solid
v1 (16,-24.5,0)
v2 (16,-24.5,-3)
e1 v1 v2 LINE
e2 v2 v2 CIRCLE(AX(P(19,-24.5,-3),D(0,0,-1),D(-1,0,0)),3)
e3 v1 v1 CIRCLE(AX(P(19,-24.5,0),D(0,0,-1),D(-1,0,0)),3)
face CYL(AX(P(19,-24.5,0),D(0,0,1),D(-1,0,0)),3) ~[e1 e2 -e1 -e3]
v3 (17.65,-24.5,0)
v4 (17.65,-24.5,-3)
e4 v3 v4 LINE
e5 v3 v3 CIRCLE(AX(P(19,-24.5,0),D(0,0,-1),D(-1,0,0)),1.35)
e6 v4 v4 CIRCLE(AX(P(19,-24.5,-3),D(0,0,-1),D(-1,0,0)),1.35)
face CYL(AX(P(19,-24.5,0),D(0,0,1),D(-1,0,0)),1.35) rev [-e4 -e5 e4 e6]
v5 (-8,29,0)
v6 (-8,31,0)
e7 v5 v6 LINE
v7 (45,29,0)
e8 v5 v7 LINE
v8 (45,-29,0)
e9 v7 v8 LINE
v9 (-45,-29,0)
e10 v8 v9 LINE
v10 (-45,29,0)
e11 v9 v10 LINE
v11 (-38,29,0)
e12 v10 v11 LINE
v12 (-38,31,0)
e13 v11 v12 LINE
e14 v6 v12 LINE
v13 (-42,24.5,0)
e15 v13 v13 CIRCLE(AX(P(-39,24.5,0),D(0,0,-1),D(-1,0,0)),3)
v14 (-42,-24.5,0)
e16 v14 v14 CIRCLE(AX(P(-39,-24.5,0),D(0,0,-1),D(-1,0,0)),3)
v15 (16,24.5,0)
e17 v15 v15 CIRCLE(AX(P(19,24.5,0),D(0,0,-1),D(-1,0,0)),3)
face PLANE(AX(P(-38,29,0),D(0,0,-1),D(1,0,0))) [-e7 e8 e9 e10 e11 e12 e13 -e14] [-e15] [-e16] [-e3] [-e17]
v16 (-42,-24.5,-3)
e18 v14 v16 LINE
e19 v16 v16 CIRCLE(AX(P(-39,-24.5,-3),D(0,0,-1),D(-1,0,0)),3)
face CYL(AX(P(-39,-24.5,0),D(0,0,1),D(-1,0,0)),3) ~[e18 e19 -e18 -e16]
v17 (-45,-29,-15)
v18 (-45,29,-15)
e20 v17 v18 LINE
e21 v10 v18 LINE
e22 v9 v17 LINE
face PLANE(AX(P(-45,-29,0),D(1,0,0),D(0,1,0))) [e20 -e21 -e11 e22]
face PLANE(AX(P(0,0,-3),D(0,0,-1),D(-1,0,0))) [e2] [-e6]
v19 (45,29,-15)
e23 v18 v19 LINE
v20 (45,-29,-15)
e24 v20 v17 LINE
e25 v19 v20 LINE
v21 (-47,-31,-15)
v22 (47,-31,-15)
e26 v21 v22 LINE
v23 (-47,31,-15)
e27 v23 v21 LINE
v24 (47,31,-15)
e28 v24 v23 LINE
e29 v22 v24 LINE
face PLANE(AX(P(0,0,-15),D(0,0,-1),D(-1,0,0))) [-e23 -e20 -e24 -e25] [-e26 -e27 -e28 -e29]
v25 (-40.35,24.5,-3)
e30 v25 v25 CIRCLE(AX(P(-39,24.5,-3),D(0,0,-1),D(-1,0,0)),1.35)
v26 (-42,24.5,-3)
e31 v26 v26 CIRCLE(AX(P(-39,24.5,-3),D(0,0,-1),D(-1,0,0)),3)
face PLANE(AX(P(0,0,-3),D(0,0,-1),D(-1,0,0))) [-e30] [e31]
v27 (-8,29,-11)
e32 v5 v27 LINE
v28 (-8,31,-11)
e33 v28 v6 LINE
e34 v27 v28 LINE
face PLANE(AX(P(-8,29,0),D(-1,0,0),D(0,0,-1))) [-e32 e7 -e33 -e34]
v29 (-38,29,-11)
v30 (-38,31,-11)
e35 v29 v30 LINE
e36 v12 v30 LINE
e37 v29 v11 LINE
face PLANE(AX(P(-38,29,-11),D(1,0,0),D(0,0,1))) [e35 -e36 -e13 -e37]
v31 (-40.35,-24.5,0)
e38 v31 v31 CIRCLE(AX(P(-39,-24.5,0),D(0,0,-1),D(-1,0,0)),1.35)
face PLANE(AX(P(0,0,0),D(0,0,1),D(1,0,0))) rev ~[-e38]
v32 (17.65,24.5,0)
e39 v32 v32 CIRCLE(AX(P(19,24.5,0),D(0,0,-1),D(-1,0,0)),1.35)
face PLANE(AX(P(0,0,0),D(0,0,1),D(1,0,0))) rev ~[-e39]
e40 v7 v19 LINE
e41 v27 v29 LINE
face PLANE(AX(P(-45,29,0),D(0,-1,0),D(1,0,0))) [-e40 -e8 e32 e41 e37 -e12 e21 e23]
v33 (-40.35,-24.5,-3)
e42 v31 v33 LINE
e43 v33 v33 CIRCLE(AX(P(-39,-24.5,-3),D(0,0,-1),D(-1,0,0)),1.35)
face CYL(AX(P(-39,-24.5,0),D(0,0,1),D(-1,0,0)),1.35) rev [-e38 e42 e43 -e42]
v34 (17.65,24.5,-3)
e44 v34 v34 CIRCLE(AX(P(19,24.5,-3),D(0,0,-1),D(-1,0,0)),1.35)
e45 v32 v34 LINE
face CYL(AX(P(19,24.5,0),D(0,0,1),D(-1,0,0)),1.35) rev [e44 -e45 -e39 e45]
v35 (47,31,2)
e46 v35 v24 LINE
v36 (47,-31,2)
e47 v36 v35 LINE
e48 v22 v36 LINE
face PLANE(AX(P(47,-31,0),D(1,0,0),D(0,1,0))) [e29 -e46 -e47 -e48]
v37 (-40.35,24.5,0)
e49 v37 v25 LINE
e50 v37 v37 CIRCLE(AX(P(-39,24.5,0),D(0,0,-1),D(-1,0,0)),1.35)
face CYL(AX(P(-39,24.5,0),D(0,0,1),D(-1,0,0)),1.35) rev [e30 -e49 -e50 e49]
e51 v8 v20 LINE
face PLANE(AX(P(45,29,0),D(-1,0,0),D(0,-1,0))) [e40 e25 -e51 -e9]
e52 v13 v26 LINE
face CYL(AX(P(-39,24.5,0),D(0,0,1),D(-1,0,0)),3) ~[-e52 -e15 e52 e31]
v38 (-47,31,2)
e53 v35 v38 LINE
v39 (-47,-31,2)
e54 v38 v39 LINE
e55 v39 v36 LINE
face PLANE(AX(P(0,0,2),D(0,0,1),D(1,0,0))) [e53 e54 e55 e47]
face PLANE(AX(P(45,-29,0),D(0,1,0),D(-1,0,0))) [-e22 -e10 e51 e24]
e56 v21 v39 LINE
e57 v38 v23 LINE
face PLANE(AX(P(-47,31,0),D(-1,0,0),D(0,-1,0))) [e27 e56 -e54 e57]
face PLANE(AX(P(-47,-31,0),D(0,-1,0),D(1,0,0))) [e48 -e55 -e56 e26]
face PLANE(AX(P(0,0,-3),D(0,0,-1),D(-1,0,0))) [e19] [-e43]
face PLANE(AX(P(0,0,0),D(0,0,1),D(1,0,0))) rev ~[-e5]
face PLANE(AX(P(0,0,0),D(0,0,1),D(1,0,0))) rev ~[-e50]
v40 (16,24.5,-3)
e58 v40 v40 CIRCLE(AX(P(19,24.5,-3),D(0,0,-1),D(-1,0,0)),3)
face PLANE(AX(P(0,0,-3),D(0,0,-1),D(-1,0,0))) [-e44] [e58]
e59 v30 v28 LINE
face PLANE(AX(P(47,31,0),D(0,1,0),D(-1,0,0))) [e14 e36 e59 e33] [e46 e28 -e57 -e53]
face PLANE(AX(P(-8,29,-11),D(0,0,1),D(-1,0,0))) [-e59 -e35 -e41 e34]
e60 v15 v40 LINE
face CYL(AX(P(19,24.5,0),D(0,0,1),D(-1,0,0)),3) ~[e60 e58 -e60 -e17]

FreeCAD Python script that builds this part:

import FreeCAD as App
import Part
import Sketcher

V = App.Vector
Q = App.Units.Quantity

doc = App.newDocument("Part")
body = doc.addObject("PartDesign::Body", "Body")

# Sketch on XY plane
sketch1 = body.newObject("Sketcher::SketchObject", "Sketch")
sketch1.AttachmentSupport = (doc.getObject("XY_Plane"), [""])
sketch1.MapMode = "FlatFace"
sketch1.addGeometry([
    Part.LineSegment(V(47, -31, 0), V(47, 31, 0)),
    Part.LineSegment(V(47, 31, 0), V(-47, 31, 0)),
    Part.LineSegment(V(-47, 31, 0), V(-47, -31, 0)),
    Part.LineSegment(V(-47, -31, 0), V(47, -31, 0)),
], False)
sketch1.addConstraint([
    Sketcher.Constraint("Coincident", 0, 2, 1, 1),
    Sketcher.Constraint("Coincident", 1, 2, 2, 1),
    Sketcher.Constraint("Coincident", 2, 2, 3, 1),
    Sketcher.Constraint("Coincident", 3, 2, 0, 1),
    Sketcher.Constraint("Vertical", 0),
    Sketcher.Constraint("Horizontal", 1),
    Sketcher.Constraint("Vertical", 2),
    Sketcher.Constraint("Horizontal", 3),
    Sketcher.Constraint("Symmetric", 0, 2, 2, 2, -1, 1),
    Sketcher.Constraint("DistanceX", 1, 2, 1, 1, Q("94 mm")),
    Sketcher.Constraint("DistanceY", 0, 1, 0, 2, Q("62 mm")),
])
pad1 = body.newObject("PartDesign::Pad", "Pad")
pad1.Profile = sketch1
pad1.Length = 2

# Sketch on XY plane
sketch2 = body.newObject("Sketcher::SketchObject", "Sketch001")
sketch2.AttachmentSupport = (doc.getObject("XY_Plane"), [""])
sketch2.MapMode = "FlatFace"
sketch2.addGeometry([
    Part.Circle(V(-39, 24.5, 0), V(0, 0, 1), 3),  # 0
    Part.Circle(V(-39, 24.5, 0), V(0, 0, 1), 1.4),  # 1
    Part.Circle(V(-39, -24.5, 0), V(0, 0, 1), 3),  # 2
    Part.Circle(V(-39, -24.5, 0), V(0, 0, 1), 1.4),  # 3
    Part.Circle(V(19, -24.5, 0), V(0, 0, 1), 3),  # 4
    Part.Circle(V(19, -24.5, 0), V(0, 0, 1), 1.4),  # 5
    Part.Circle(V(19, 24.5, 0), V(0, 0, 1), 3),  # 6
    Part.Circle(V(19, 24.5, 0), V(0, 0, 1), 1.4),  # 7
], False)
sketch2.addConstraint([
    Sketcher.Constraint("Coincident", 1, 3, 0, 3),
    Sketcher.Constraint("Coincident", 3, 3, 2, 3),
    Sketcher.Constraint("Coincident", 5, 3, 4, 3),
    Sketcher.Constraint("Coincident", 7, 3, 6, 3),
    Sketcher.Constraint("Equal", 0, 2),
    Sketcher.Constraint("Equal", 1, 3),
    Sketcher.Constraint("Equal", 2, 4),
    Sketcher.Constraint("Equal", 3, 5),
    Sketcher.Constraint("Equal", 4, 6),
    Sketcher.Constraint("Equal", 5, 7),
    Sketcher.Constraint("Symmetric", 0, 3, 2, 3, -1),
    Sketcher.Constraint("Symmetric", 4, 3, 6, 3, -1),
    Sketcher.Constraint("Horizontal", 3, 3, 4, 3),
    Sketcher.Constraint("Diameter", 0, Q("6 mm")),
    Sketcher.Constraint("Diameter", 1, Q("2.7 mm")),
    Sketcher.Constraint("DistanceX", 0, 3, -1, 1, Q("39 mm")),
    Sketcher.Constraint("DistanceX", -1, 1, 4, 3, Q("19 mm")),
    Sketcher.Constraint("DistanceY", 2, 3, 0, 3, Q("49 mm")),
])
pad2 = body.newObject("PartDesign::Pad", "Pad001")
pad2.Profile = sketch2
pad2.Length = 3
pad2.Reversed = True

# Sketch on XY plane
sketch3 = body.newObject("Sketcher::SketchObject", "Sketch002")
sketch3.AttachmentSupport = (doc.getObject("XY_Plane"), [""])
sketch3.MapMode = "FlatFace"
sketch3.addGeometry([
    Part.LineSegment(V(-47, -31, 0), V(-47, 31, 0)),  # 0
    Part.LineSegment(V(-47, 31, 0), V(47, 31, 0)),  # 1
    Part.LineSegment(V(47, 31, 0), V(47, -31, 0)),  # 2
    Part.LineSegment(V(47, -31, 0), V(-47, -31, 0)),  # 3
    Part.LineSegment(V(-45, 29, 0), V(-45, -29, 0)),  # 4
    Part.LineSegment(V(-45, -29, 0), V(45, -29, 0)),  # 5
    Part.LineSegment(V(45, -29, 0), V(45, 29, 0)),  # 6
    Part.LineSegment(V(45, 29, 0), V(-45, 29, 0)),  # 7
], False)
sketch3.addConstraint([
    Sketcher.Constraint("Coincident", 0, 2, 1, 1),
    Sketcher.Constraint("Coincident", 1, 2, 2, 1),
    Sketcher.Constraint("Coincident", 2, 2, 3, 1),
    Sketcher.Constraint("Coincident", 3, 2, 0, 1),
    Sketcher.Constraint("Coincident", 4, 2, 5, 1),
    Sketcher.Constraint("Coincident", 5, 2, 6, 1),
    Sketcher.Constraint("Coincident", 6, 2, 7, 1),
    Sketcher.Constraint("Coincident", 7, 2, 4, 1),
    Sketcher.Constraint("Vertical", 0),
    Sketcher.Constraint("Horizontal", 1),
    Sketcher.Constraint("Vertical", 2),
    Sketcher.Constraint("Horizontal", 3),
    Sketcher.Constraint("Vertical", 4),
    Sketcher.Constraint("Horizontal", 5),
    Sketcher.Constraint("Vertical", 6),
    Sketcher.Constraint("Horizontal", 7),
    Sketcher.Constraint("Symmetric", 0, 2, 2, 2, -1, 1),
    Sketcher.Constraint("Symmetric", 4, 2, 6, 2, -1, 1),
    Sketcher.Constraint("DistanceX", 3, 2, 4, 2, Q("2 mm")),
    Sketcher.Constraint("DistanceY", 3, 2, 4, 2, Q("2 mm")),
    Sketcher.Constraint("DistanceX", 1, 1, 1, 2, Q("94 mm")),
    Sketcher.Constraint("DistanceY", 0, 1, 0, 2, Q("62 mm")),
])
pad3 = body.newObject("PartDesign::Pad", "Pad002")
pad3.Profile = sketch3
pad3.Length = 15
pad3.Reversed = True

# Sketch on XZ plane
sketch4 = body.newObject("Sketcher::SketchObject", "Sketch003")
sketch4.AttachmentSupport = (doc.getObject("XZ_Plane"), [""])
sketch4.MapMode = "FlatFace"
sketch4.AttachmentOffset = App.Placement(V(0, 0, -29), App.Rotation())
sketch4.addGeometry([
    Part.LineSegment(V(-8, 0, 0), V(-38, 0, 0)),
    Part.LineSegment(V(-38, 0, 0), V(-38, -11, 0)),
    Part.LineSegment(V(-38, -11, 0), V(-8, -11, 0)),
    Part.LineSegment(V(-8, -11, 0), V(-8, 0, 0)),
], False)
sketch4.addConstraint([
    Sketcher.Constraint("Coincident", 0, 2, 1, 1),
    Sketcher.Constraint("Coincident", 1, 2, 2, 1),
    Sketcher.Constraint("Coincident", 2, 2, 3, 1),
    Sketcher.Constraint("Coincident", 3, 2, 0, 1),
    Sketcher.Constraint("Horizontal", 0),
    Sketcher.Constraint("Vertical", 1),
    Sketcher.Constraint("Horizontal", 2),
    Sketcher.Constraint("Vertical", 3),
    Sketcher.Constraint("PointOnObject", 0, 2, -1),
    Sketcher.Constraint("DistanceX", 0, 2, 0, 1, Q("30 mm")),
    Sketcher.Constraint("DistanceY", 1, 2, 1, 1, Q("11 mm")),
    Sketcher.Constraint("DistanceX", 0, 2, -1, 1, Q("38 mm")),
])
pocket1 = body.newObject("PartDesign::Pocket", "Pocket")
pocket1.Profile = sketch4
pocket1.Length = 15

doc.recompute()
